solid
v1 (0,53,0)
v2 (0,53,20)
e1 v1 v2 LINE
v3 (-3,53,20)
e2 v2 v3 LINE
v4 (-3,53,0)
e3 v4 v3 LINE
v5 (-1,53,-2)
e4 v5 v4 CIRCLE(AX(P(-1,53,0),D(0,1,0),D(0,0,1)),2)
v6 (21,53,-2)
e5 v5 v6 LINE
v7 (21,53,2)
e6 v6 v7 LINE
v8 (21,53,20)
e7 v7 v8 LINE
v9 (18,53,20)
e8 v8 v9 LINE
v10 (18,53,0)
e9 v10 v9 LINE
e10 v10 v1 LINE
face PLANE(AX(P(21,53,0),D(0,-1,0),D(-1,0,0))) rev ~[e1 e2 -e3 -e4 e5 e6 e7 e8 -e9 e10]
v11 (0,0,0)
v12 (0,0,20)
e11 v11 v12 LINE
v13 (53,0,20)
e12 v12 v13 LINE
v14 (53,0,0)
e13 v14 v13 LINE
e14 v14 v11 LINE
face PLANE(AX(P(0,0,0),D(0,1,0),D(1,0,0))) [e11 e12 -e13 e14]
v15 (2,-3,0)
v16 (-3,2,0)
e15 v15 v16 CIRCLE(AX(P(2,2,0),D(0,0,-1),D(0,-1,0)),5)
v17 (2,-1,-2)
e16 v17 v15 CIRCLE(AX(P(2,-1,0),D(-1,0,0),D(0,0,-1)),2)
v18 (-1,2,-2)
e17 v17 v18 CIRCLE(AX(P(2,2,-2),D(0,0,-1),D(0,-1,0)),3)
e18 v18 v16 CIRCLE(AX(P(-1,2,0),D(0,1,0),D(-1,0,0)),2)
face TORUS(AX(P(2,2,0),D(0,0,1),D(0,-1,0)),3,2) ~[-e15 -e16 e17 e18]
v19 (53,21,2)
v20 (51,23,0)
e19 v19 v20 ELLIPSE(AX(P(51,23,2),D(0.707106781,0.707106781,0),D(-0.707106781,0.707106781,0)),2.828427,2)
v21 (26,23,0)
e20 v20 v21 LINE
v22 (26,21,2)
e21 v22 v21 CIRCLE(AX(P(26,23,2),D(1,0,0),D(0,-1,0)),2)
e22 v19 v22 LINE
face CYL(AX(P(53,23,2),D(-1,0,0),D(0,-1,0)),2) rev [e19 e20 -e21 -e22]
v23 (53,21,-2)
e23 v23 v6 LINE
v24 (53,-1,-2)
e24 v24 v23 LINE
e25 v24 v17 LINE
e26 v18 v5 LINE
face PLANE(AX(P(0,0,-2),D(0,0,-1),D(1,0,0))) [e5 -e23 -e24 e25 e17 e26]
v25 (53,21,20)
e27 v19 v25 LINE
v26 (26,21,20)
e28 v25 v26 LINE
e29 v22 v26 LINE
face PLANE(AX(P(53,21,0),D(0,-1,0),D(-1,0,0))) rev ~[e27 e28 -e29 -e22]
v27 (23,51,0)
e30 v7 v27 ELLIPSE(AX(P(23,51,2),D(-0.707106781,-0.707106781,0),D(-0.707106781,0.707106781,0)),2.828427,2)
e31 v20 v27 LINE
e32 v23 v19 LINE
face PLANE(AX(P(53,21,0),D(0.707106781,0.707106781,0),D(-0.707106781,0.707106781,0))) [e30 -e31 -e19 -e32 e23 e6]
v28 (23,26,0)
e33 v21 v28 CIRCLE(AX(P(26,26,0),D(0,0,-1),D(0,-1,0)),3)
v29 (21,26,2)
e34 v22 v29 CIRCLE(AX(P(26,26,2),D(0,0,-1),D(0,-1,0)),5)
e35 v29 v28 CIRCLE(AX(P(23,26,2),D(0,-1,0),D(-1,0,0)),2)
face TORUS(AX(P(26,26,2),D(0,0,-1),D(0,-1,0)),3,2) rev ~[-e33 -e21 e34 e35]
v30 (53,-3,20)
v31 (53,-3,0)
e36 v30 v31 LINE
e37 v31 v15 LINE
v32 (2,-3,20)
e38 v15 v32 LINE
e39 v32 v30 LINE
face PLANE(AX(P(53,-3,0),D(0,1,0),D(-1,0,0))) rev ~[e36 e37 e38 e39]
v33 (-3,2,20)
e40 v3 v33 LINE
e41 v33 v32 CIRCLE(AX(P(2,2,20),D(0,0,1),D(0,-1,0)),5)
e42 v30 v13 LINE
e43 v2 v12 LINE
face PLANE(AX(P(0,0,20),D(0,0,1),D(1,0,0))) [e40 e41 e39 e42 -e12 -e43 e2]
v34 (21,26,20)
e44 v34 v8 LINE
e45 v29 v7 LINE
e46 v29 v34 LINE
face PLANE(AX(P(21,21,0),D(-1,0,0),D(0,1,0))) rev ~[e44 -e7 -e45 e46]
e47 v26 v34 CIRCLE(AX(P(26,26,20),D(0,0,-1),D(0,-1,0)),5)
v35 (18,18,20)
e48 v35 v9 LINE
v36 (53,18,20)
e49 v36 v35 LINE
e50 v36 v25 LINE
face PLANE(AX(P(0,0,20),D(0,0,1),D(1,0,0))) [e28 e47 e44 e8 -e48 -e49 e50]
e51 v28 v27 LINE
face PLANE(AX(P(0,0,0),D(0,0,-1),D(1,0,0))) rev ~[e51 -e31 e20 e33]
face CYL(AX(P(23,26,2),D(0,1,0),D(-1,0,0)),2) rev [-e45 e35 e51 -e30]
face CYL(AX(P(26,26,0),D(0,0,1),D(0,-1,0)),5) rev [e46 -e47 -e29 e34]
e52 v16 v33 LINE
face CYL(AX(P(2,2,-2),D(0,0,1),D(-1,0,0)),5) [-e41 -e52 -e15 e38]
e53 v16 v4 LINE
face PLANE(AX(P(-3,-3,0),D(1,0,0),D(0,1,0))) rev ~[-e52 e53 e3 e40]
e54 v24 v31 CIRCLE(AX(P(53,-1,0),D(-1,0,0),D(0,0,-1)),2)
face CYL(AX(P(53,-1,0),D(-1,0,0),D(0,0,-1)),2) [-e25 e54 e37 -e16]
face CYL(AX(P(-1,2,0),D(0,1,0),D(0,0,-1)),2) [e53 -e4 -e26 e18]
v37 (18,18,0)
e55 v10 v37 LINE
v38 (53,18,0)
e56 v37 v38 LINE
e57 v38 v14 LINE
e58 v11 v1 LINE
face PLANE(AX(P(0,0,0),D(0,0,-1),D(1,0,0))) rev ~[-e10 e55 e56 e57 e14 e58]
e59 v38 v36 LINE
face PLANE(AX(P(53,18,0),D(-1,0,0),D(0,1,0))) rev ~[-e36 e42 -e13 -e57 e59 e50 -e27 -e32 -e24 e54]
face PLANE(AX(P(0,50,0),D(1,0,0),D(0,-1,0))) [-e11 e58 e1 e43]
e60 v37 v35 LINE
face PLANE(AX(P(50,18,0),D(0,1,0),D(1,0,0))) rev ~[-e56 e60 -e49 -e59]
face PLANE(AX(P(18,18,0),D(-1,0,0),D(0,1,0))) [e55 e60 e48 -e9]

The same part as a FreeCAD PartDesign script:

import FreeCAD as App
import Part
import Sketcher


def edges_at(feature, points):
    """Names of the edges that pass closest to the given points."""
    edges = feature.Shape.Edges
    near = lambda p: min(range(len(edges)), key=lambda i: edges[i].distToShape(Part.Vertex(*p))[0])
    return sorted({f"Edge{near(p) + 1}" for p in points})

doc = App.newDocument("Part")
body = doc.addObject("PartDesign::Body", "Body")
body.AllowCompound = True

sketch1 = body.newObject("Sketcher::SketchObject", "Sketch")
sketch1.AttachmentSupport = (doc.getObject("XY_Plane"), [""])
sketch1.MapMode = "FlatFace"
sketch1.addGeometry([
    Part.LineSegment(App.Vector(18, 53, 0), App.Vector(18, 18, 0)),
    Part.LineSegment(App.Vector(18, 18, 0), App.Vector(53, 18, 0)),
    Part.LineSegment(App.Vector(53, 18, 0), App.Vector(53, 21, 0)),
    Part.LineSegment(App.Vector(53, 21, 0), App.Vector(21, 21, 0)),
    Part.LineSegment(App.Vector(21, 21, 0), App.Vector(21, 53, 0)),
    Part.LineSegment(App.Vector(21, 53, 0), App.Vector(18, 53, 0)),
    Part.LineSegment(App.Vector(0, 0, 0), App.Vector(0, 53, 0)),
    Part.LineSegment(App.Vector(0, 53, 0), App.Vector(-3, 53, 0)),
    Part.LineSegment(App.Vector(-3, 53, 0), App.Vector(-3, -3, 0)),
    Part.LineSegment(App.Vector(-3, -3, 0), App.Vector(53, -3, 0)),
    Part.LineSegment(App.Vector(53, -3, 0), App.Vector(53, 0, 0)),
    Part.LineSegment(App.Vector(53, 0, 0), App.Vector(0, 0, 0)),
], False)
sketch1.addConstraint([
    Sketcher.Constraint("Coincident", 0, 2, 1, 1),
    Sketcher.Constraint("Coincident", 1, 2, 2, 1),
    Sketcher.Constraint("Coincident", 2, 2, 3, 1),
    Sketcher.Constraint("Coincident", 3, 2, 4, 1),
    Sketcher.Constraint("Coincident", 4, 2, 5, 1),
    Sketcher.Constraint("Coincident", 5, 2, 0, 1),
    Sketcher.Constraint("Coincident", 6, 2, 7, 1),
    Sketcher.Constraint("Coincident", 7, 2, 8, 1),
    Sketcher.Constraint("Coincident", 8, 2, 9, 1),
    Sketcher.Constraint("Coincident", 9, 2, 10, 1),
    Sketcher.Constraint("Coincident", 10, 2, 11, 1),
    Sketcher.Constraint("Coincident", 11, 2, 6, 1),
    Sketcher.Constraint("Vertical", 0),
    Sketcher.Constraint("Horizontal", 1),
    Sketcher.Constraint("Vertical", 2),
    Sketcher.Constraint("Horizontal", 3),
    Sketcher.Constraint("Vertical", 4),
    Sketcher.Constraint("Horizontal", 5),
    Sketcher.Constraint("Vertical", 6),
    Sketcher.Constraint("Horizontal", 7),
    Sketcher.Constraint("Vertical", 8),
    Sketcher.Constraint("Horizontal", 9),
    Sketcher.Constraint("Vertical", 10),
    Sketcher.Constraint("Horizontal", 11),
    Sketcher.Constraint("Coincident", 11, 2, -1, 1),
    Sketcher.Constraint("Horizontal", 5, 2, 6, 2),
    Sketcher.Constraint("Vertical", 2, 2, 9, 2),
    Sketcher.Constraint("Equal", 5, 7),
    Sketcher.Constraint("Equal", 1, 0),
    Sketcher.Constraint("Equal", 7, 2),
    Sketcher.Constraint("Equal", 11, 6),
    Sketcher.Constraint("Equal", 9, 8),
    Sketcher.Constraint("DistanceX", -1, 1, 0, 2, 18.0),
    Sketcher.Constraint("DistanceX", 1, 1, 1, 2, 35.0),
    Sketcher.Constraint("DistanceX", 3, 2, 3, 1, 32.0),
])
pad1 = body.newObject("PartDesign::Pad", "Pad")
pad1.Profile = sketch1
pad1.Length = 20

sketch2 = body.newObject("Sketcher::SketchObject", "Sketch001")
sketch2.AttachmentSupport = (doc.getObject("XY_Plane"), [""])
sketch2.MapMode = "FlatFace"
sketch2.addGeometry([
    Part.LineSegment(App.Vector(53, 21, 0), App.Vector(53, -3, 0)),
    Part.LineSegment(App.Vector(53, -3, 0), App.Vector(-3, -3, 0)),
    Part.LineSegment(App.Vector(-3, -3, 0), App.Vector(-3, 53, 0)),
    Part.LineSegment(App.Vector(-3, 53, 0), App.Vector(21, 53, 0)),
    Part.LineSegment(App.Vector(21, 53, 0), App.Vector(53, 21, 0)),
], False)
sketch2.addConstraint([
    Sketcher.Constraint("Coincident", 0, 2, 1, 1),
    Sketcher.Constraint("Coincident", 1, 2, 2, 1),
    Sketcher.Constraint("Coincident", 2, 2, 3, 1),
    Sketcher.Constraint("Coincident", 3, 2, 4, 1),
    Sketcher.Constraint("Coincident", 4, 2, 0, 1),
    Sketcher.Constraint("Vertical", 0),
    Sketcher.Constraint("Horizontal", 1),
    Sketcher.Constraint("Vertical", 2),
    Sketcher.Constraint("Horizontal", 3),
    Sketcher.Constraint("Equal", 3, 0),
    Sketcher.Constraint("Equal", 1, 2),
    Sketcher.Constraint("DistanceX", 1, 2, 1, 1, 56.0),
    Sketcher.Constraint("DistanceX", 3, 1, 3, 2, 24.0),
    Sketcher.Constraint("DistanceX", -1, 1, 0, 2, 53.0),
    Sketcher.Constraint("DistanceY", 0, 2, -1, 1, 3.0),
])
pad2 = body.newObject("PartDesign::Pad", "Pad001")
pad2.Profile = sketch2
pad2.Length = 2
pad2.Reversed = True
doc.recompute()

fillet = body.newObject("PartDesign::Fillet", "Fillet")
fillet.Base = (pad2, edges_at(pad2, [(21, 21, 10), (-3, -3, 9)]))
fillet.Radius = 5
doc.recompute()

fillet2 = body.newObject("PartDesign::Fillet", "Fillet001")
fillet2.Base = (fillet, edges_at(fillet, [
    (27.5, -3, -2),
    (-1.536, -1.536, -2),
    (-3, 27.5, -2),
    (39.5, 21, 0),
    (22.465, 22.465, 0),
    (21, 39.5, 0),
]))
fillet2.Radius = 2

doc.recompute()
